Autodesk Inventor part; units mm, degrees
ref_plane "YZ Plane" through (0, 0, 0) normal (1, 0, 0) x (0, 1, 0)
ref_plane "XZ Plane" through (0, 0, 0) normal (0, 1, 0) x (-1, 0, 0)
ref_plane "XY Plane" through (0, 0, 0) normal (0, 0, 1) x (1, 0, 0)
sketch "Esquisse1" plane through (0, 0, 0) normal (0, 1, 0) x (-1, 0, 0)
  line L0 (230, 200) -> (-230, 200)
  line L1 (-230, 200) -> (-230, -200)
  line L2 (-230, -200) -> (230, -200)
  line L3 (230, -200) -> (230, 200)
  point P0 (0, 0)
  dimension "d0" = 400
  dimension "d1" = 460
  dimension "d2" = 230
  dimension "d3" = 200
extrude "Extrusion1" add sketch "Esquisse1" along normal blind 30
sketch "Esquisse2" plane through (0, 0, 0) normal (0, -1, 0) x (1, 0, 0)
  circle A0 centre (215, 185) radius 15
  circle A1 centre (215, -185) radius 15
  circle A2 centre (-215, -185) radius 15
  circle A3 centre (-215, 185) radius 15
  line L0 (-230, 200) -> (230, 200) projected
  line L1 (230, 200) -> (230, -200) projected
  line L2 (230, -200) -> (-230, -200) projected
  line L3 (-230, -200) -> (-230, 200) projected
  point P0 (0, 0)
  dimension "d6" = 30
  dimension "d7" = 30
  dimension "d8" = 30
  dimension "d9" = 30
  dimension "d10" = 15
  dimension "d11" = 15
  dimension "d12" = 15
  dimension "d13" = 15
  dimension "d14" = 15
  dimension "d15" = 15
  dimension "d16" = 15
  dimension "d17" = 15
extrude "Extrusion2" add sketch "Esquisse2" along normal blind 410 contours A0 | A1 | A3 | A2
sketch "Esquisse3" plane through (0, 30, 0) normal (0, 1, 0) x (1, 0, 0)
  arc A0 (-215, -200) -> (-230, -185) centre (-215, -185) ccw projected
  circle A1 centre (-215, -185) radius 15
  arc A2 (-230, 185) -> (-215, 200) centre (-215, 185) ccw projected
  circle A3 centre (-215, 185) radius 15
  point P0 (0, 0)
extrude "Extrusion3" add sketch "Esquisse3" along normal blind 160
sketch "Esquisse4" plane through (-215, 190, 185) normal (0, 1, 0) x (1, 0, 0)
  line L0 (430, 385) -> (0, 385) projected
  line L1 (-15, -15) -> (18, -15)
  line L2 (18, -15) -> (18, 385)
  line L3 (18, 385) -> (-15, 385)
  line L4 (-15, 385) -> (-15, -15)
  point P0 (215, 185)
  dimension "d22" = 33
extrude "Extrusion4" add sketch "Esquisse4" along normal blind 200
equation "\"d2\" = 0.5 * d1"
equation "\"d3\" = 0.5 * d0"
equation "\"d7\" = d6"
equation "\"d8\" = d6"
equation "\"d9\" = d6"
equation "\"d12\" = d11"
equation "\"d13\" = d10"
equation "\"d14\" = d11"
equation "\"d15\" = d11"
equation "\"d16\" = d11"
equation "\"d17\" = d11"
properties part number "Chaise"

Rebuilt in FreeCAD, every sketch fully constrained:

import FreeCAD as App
import Part
import Sketcher
from FreeCAD import Vector

doc = App.newDocument("Part")
body = doc.addObject("PartDesign::Body", "Body")

# Sketch on XZ plane
sketch1 = body.newObject("Sketcher::SketchObject", "Sketch")
sketch1.AttachmentSupport = (doc.getObject("XZ_Plane"), [""])
sketch1.MapMode = "FlatFace"
sketch1.addGeometry([
    Part.LineSegment(Vector(-230, -200, 0), Vector(-230, 200, 0)),
    Part.LineSegment(Vector(-230, 200, 0), Vector(230, 200, 0)),
    Part.LineSegment(Vector(230, 200, 0), Vector(230, -200, 0)),
    Part.LineSegment(Vector(230, -200, 0), Vector(-230, -200, 0)),
], False)
sketch1.addConstraint([
    Sketcher.Constraint("Coincident", 0, 2, 1, 1),
    Sketcher.Constraint("Coincident", 1, 2, 2, 1),
    Sketcher.Constraint("Coincident", 2, 2, 3, 1),
    Sketcher.Constraint("Coincident", 3, 2, 0, 1),
    Sketcher.Constraint("Vertical", 0),
    Sketcher.Constraint("Horizontal", 1),
    Sketcher.Constraint("Vertical", 2),
    Sketcher.Constraint("Horizontal", 3),
    Sketcher.Constraint("Symmetric", 0, 2, 2, 2, -1, 1),
    Sketcher.Constraint("DistanceX", 1, 1, 1, 2, 460.0),
    Sketcher.Constraint("DistanceY", 0, 1, 0, 2, 400.0),
])
pad1 = body.newObject("PartDesign::Pad", "Pad")
pad1.Profile = sketch1
pad1.Length = 30
pad1.Reversed = True

# Sketch on XZ plane
sketch2 = body.newObject("Sketcher::SketchObject", "Sketch001")
sketch2.AttachmentSupport = (doc.getObject("XZ_Plane"), [""])
sketch2.MapMode = "FlatFace"
sketch2.addGeometry([
    Part.Circle(Vector(215, 185, 0), Vector(0, 0, 1), 15),
    Part.Circle(Vector(215, -185, 0), Vector(0, 0, 1), 15),
    Part.Circle(Vector(-215, 185, 0), Vector(0, 0, 1), 15),
    Part.Circle(Vector(-215, -185, 0), Vector(0, 0, 1), 15),
], False)
sketch2.addConstraint([
    Sketcher.Constraint("Equal", 0, 1),
    Sketcher.Constraint("Equal", 1, 2),
    Sketcher.Constraint("Equal", 2, 3),
    Sketcher.Constraint("Symmetric", 1, 3, 2, 3, -1, 1),
    Sketcher.Constraint("Symmetric", 0, 3, 3, 3, -1, 1),
    Sketcher.Constraint("Symmetric", 0, 3, 2, 3, -2),
    Sketcher.Constraint("Diameter", 0, 30.0),
    Sketcher.Constraint("DistanceX", -1, 1, 0, 3, 215.0),
    Sketcher.Constraint("DistanceY", -1, 1, 0, 3, 185.0),
])
pad2 = body.newObject("PartDesign::Pad", "Pad001")
pad2.Profile = sketch2
pad2.Length = 410

# Sketch on XZ plane
sketch3 = body.newObject("Sketcher::SketchObject", "Sketch002")
sketch3.AttachmentSupport = (doc.getObject("XZ_Plane"), [""])
sketch3.MapMode = "FlatFace"
sketch3.AttachmentOffset = App.Placement(Vector(0, 0, -30), App.Rotation())
sketch3.addGeometry([
    Part.Circle(Vector(-215, 185, 0), Vector(0, 0, 1), 15),
    Part.Circle(Vector(-215, -185, 0), Vector(0, 0, 1), 15),
], False)
sketch3.addConstraint([
    Sketcher.Constraint("Equal", 0, 1),
    Sketcher.Constraint("Symmetric", 0, 3, 1, 3, -1),
    Sketcher.Constraint("Diameter", 0, 30.0),
    Sketcher.Constraint("DistanceX", 0, 3, -1, 1, 215.0),
    Sketcher.Constraint("DistanceY", -1, 1, 0, 3, 185.0),
])
pad3 = body.newObject("PartDesign::Pad", "Pad002")
pad3.Profile = sketch3
pad3.Length = 160
pad3.Reversed = True

# Sketch on XZ plane
sketch4 = body.newObject("Sketcher::SketchObject", "Sketch003")
sketch4.AttachmentSupport = (doc.getObject("XZ_Plane"), [""])
sketch4.MapMode = "FlatFace"
sketch4.AttachmentOffset = App.Placement(Vector(0, 0, -190), App.Rotation())
sketch4.addGeometry([
    Part.LineSegment(Vector(-197, 200, 0), Vector(-197, -200, 0)),
    Part.LineSegment(Vector(-197, -200, 0), Vector(-230, -200, 0)),
    Part.LineSegment(Vector(-230, -200, 0), Vector(-230, 200, 0)),
    Part.LineSegment(Vector(-230, 200, 0), Vector(-197, 200, 0)),
], False)
sketch4.addConstraint([
    Sketcher.Constraint("Coincident", 0, 2, 1, 1),
    Sketcher.Constraint("Coincident", 1, 2, 2, 1),
    Sketcher.Constraint("Coincident", 2, 2, 3, 1),
    Sketcher.Constraint("Coincident", 3, 2, 0, 1),
    Sketcher.Constraint("Vertical", 0),
    Sketcher.Constraint("Horizontal", 1),
    Sketcher.Constraint("Vertical", 2),
    Sketcher.Constraint("Horizontal", 3),
    Sketcher.Constraint("DistanceX", 1, 2, 1, 1, 33.0),
    Sketcher.Constraint("DistanceY", 0, 2, 0, 1, 400.0),
    Sketcher.Constraint("DistanceX", 0, 2, -1, 1, 197.0),
    Sketcher.Constraint("DistanceY", 0, 2, -1, 1, 200.0),
])
pad4 = body.newObject("PartDesign::Pad", "Pad003")
pad4.Profile = sketch4
pad4.Length = 200
pad4.Reversed = True

doc.recompute()
